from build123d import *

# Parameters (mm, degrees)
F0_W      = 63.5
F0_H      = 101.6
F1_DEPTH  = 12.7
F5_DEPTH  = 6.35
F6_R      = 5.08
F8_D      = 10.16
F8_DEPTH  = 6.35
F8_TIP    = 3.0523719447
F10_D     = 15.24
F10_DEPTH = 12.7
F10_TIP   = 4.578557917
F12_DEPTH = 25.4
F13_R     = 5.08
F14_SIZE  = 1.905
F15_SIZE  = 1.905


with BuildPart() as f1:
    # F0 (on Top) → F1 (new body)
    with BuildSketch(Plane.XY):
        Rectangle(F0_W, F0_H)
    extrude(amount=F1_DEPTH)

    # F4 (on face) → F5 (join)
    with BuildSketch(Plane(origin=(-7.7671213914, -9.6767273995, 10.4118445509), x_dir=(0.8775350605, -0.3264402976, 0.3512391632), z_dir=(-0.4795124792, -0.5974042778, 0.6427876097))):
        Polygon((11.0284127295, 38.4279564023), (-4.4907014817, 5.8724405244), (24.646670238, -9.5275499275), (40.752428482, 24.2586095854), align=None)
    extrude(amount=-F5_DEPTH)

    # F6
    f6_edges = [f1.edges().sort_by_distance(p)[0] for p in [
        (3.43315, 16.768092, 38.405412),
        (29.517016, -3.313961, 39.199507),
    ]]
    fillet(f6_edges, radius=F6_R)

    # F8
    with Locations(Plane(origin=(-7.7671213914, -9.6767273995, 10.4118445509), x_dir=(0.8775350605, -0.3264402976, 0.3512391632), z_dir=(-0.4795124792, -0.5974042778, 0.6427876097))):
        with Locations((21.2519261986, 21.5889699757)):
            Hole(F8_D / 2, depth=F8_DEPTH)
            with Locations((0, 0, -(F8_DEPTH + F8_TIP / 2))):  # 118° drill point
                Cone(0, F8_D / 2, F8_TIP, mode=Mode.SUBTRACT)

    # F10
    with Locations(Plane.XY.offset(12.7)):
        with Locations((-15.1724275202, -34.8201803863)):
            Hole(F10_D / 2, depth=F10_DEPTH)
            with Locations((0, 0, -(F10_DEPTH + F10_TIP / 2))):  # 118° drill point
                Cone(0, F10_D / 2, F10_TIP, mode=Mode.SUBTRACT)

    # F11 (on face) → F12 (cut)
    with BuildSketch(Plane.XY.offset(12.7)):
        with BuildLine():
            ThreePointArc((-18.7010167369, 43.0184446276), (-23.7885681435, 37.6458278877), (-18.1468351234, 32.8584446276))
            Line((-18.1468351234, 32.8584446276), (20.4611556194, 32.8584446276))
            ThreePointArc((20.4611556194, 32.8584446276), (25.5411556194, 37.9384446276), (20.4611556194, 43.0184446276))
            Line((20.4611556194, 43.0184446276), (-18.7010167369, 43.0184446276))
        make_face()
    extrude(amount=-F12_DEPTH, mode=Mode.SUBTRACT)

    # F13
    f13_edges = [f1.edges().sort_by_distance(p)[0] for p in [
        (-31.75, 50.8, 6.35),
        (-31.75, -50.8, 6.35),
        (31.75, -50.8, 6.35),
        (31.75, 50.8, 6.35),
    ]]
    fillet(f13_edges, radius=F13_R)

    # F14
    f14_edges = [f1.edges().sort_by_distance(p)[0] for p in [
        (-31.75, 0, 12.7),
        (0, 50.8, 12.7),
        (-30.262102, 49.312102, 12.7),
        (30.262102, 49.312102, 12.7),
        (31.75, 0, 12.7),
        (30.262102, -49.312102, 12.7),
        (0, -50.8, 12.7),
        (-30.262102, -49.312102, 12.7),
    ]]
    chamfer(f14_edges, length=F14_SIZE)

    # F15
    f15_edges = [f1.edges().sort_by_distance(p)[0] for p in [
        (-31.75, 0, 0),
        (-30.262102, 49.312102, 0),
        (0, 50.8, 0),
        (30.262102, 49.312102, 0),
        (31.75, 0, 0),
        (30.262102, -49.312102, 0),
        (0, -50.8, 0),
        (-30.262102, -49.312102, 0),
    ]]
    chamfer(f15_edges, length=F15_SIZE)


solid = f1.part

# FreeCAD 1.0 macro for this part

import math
import FreeCAD as App
import Part
import Sketcher
Q = App.Units.Quantity


def edges_at(feature, points):
    """Names of the edges that pass closest to the given points."""
    edges = feature.Shape.Edges
    near = lambda p: min(range(len(edges)), key=lambda i: edges[i].distToShape(Part.Vertex(*p))[0])
    return sorted({f"Edge{near(p) + 1}" for p in points})


def add_polygon(sketch, points):
    """Adds a closed chain of lines whose ends are joined by coincident constraints."""
    first, n = sketch.GeometryCount, len(points)
    for a, b in zip(points, points[1:] + points[:1]):
        sketch.addGeometry(Part.LineSegment(App.Vector(*a, 0), App.Vector(*b, 0)), False)
    for i in range(n):
        sketch.addConstraint(Sketcher.Constraint("Coincident", first + i, 2, first + (i + 1) % n, 1))

doc = App.newDocument("Part")
body = doc.addObject("PartDesign::Body", "Body")

# Sketch on XY plane
sketch1 = body.newObject("Sketcher::SketchObject", "Sketch")
sketch1.AttachmentSupport = (doc.getObject("XY_Plane"), [""])
sketch1.MapMode = "FlatFace"
add_polygon(sketch1, [(-31.75, 50.8), (-31.75, -50.8), (31.75, -50.8), (31.75, 50.8)])  # lines 0-3
sketch1.addConstraint(Sketcher.Constraint("Vertical", 0))
sketch1.addConstraint(Sketcher.Constraint("Horizontal", 1))
sketch1.addConstraint(Sketcher.Constraint("Vertical", 2))
sketch1.addConstraint(Sketcher.Constraint("Horizontal", 3))
sketch1.addConstraint(Sketcher.Constraint("Symmetric", 0, 2, 2, 2, -1, 1))
sketch1.addConstraint(Sketcher.Constraint("DistanceY", 0, 2, 0, 1, Q("4 in")))
sketch1.addConstraint(Sketcher.Constraint("DistanceX", 1, 1, 1, 2, Q("2.5 in")))
pad1 = body.newObject("PartDesign::Pad", "Pad")
pad1.Profile = sketch1
pad1.Length = Q("0.5 in")

# Sketch on an angled plane
sketch2 = body.newObject("Sketcher::SketchObject", "Sketch001")
sketch2.Placement = App.Placement(App.Vector(-7.767121, -9.676727, 10.411845), App.Rotation(App.Vector(0.87753506, -0.326440298, 0.351239163), App.Vector(0, 0.732492226, 0.680775395), App.Vector(-0.479512479, -0.597404278, 0.64278761), "ZXY"))
add_polygon(sketch2, [(11.028413, 38.427956), (-4.490701, 5.872441), (24.64667, -9.52755), (40.752428, 24.25861)])  # lines 0-3
sketch2.addConstraint(Sketcher.Constraint("Parallel", 0, 2))
sketch2.addConstraint(Sketcher.Constraint("Perpendicular", 2, 3))
sketch2.addConstraint(Sketcher.Constraint("Distance", 2, 37.428599))
sketch2.addConstraint(Sketcher.Constraint("DistanceX", 0, 2, -1, 1, 4.490701))
sketch2.addConstraint(Sketcher.Constraint("Distance", 0, 36.065281))
sketch2.addConstraint(Sketcher.Constraint("Distance", 1, 32.956731))
sketch2.addConstraint(Sketcher.Constraint("DistanceY", -1, 1, 0, 2, 5.872441))
sketch2.addConstraint(Sketcher.Constraint("DistanceX", -1, 1, 1, 2, 24.64667))
pad2 = body.newObject("PartDesign::Pad", "Pad001")
pad2.Profile = sketch2
pad2.Length = Q("0.25 in")
pad2.Reversed = True
doc.recompute()

fillet = body.newObject("PartDesign::Fillet", "Fillet")
fillet.Base = (pad2, edges_at(pad2, [(3.433, 16.768, 38.405), (29.517, -3.314, 39.2)]))
fillet.Radius = Q("0.2 in")

# Sketch on an angled plane
sketch3 = body.newObject("Sketcher::SketchObject", "Sketch002")
sketch3.Placement = App.Placement(App.Vector(-7.767121, -9.676727, 10.411845), App.Rotation(App.Vector(0.87753506, -0.326440298, 0.351239163), App.Vector(0, 0.732492226, 0.680775395), App.Vector(-0.479512479, -0.597404278, 0.64278761), "ZXY"))
sketch3.addGeometry(Part.Circle(App.Vector(21.251926, 21.58897, 0), App.Vector(0, 0, 1), 5.08), False)
sketch3.addConstraint(Sketcher.Constraint("Diameter", 0, Q("0.4 in")))
sketch3.addConstraint(Sketcher.Constraint("DistanceY", -1, 1, 0, 3, 21.58897))
sketch3.addConstraint(Sketcher.Constraint("DistanceX", -1, 1, 0, 3, 21.251926))
doc.recompute()
hole = body.newObject("PartDesign::Hole", "Hole")
hole.Profile = sketch3
hole.ThreadType = "None"
hole.Diameter = Q("0.4 in")
hole.DepthType = "Dimension"
hole.Depth = Q("0.25 in")
hole.DrillPoint = "Angled"
hole.DrillPointAngle = 118

# Sketch on XY plane
sketch4 = body.newObject("Sketcher::SketchObject", "Sketch003")
sketch4.AttachmentSupport = (doc.getObject("XY_Plane"), [""])
sketch4.MapMode = "FlatFace"
sketch4.AttachmentOffset = App.Placement(App.Vector(0, 0, 0.5 * 25.4), App.Rotation())
sketch4.addGeometry(Part.Circle(App.Vector(-15.172428, -34.82018, 0), App.Vector(0, 0, 1), 7.62), False)
sketch4.addConstraint(Sketcher.Constraint("Diameter", 0, Q("0.6 in")))
sketch4.addConstraint(Sketcher.Constraint("DistanceY", 0, 3, -1, 1, 34.82018))
sketch4.addConstraint(Sketcher.Constraint("DistanceX", 0, 3, -1, 1, 15.172428))
doc.recompute()
hole2 = body.newObject("PartDesign::Hole", "Hole001")
hole2.Profile = sketch4
hole2.ThreadType = "None"
hole2.Diameter = Q("0.6 in")
hole2.DepthType = "Dimension"
hole2.Depth = Q("0.5 in")
hole2.DrillPoint = "Angled"
hole2.DrillPointAngle = 118

# Sketch on XY plane
sketch5 = body.newObject("Sketcher::SketchObject", "Sketch004")
sketch5.AttachmentSupport = (doc.getObject("XY_Plane"), [""])
sketch5.MapMode = "FlatFace"
sketch5.AttachmentOffset = App.Placement(App.Vector(0, 0, 0.5 * 25.4), App.Rotation())
sketch5.addGeometry(Part.ArcOfCircle(Part.Circle(App.Vector(-18.701017, 37.923331, 0), App.Vector(0, 0, 1), 5.095114), math.radians(90), math.radians(276.244259)), False)
sketch5.addGeometry(Part.LineSegment(App.Vector(-18.146835, 32.858445, 0), App.Vector(20.461156, 32.858445, 0)), False)
sketch5.addGeometry(Part.ArcOfCircle(Part.Circle(App.Vector(20.461156, 37.938445, 0), App.Vector(0, 0, 1), 5.08), math.radians(-90), math.radians(90)), False)
sketch5.addGeometry(Part.LineSegment(App.Vector(20.461156, 43.018445, 0), App.Vector(-18.701017, 43.018445, 0)), False)
sketch5.addConstraint(Sketcher.Constraint("Coincident", 0, 2, 1, 1))
sketch5.addConstraint(Sketcher.Constraint("Tangent", 1, 2, 2, 1))
sketch5.addConstraint(Sketcher.Constraint("Tangent", 2, 2, 3, 1))
sketch5.addConstraint(Sketcher.Constraint("Tangent", 3, 2, 0, 1))
sketch5.addConstraint(Sketcher.Constraint("Horizontal", 1))
sketch5.addConstraint(Sketcher.Constraint("Horizontal", 3))
sketch5.addConstraint(Sketcher.Constraint("Radius", 2, Q("0.2 in")))
sketch5.addConstraint(Sketcher.Constraint("Radius", 0, 5.095114))
sketch5.addConstraint(Sketcher.Constraint("DistanceX", 1, 1, 1, 2, 38.607991))
sketch5.addConstraint(Sketcher.Constraint("DistanceY", -1, 1, 0, 3, 37.923331))
sketch5.addConstraint(Sketcher.Constraint("DistanceX", 0, 3, -1, 1, 18.701017))
pocket1 = body.newObject("PartDesign::Pocket", "Pocket")
pocket1.Profile = sketch5
pocket1.Length = Q("1 in")
doc.recompute()

fillet2 = body.newObject("PartDesign::Fillet", "Fillet001")
fillet2.Base = (pocket1, edges_at(pocket1, [
    (-31.75, 50.8, 6.35),
    (-31.75, -50.8, 6.35),
    (31.75, -50.8, 6.35),
    (31.75, 50.8, 6.35),
]))
fillet2.Radius = Q("0.2 in")
doc.recompute()

chamfer = body.newObject("PartDesign::Chamfer", "Chamfer")
chamfer.Base = (fillet2, edges_at(fillet2, [
    (-31.75, 0, 12.7),
    (0, 50.8, 12.7),
    (-30.262, 49.312, 12.7),
    (30.262, 49.312, 12.7),
    (31.75, 0, 12.7),
    (30.262, -49.312, 12.7),
    (0, -50.8, 12.7),
    (-30.262, -49.312, 12.7),
]))
chamfer.Size = Q("0.075 in")
doc.recompute()

chamfer2 = body.newObject("PartDesign::Chamfer", "Chamfer001")
chamfer2.Base = (chamfer, edges_at(chamfer, [
    (-31.75, 0, 0),
    (-30.262, 49.312, 0),
    (0, 50.8, 0),
    (30.262, 49.312, 0),
    (31.75, 0, 0),
    (30.262, -49.312, 0),
    (0, -50.8, 0),
    (-30.262, -49.312, 0),
]))
chamfer2.Size = Q("0.075 in")

doc.recompute()
